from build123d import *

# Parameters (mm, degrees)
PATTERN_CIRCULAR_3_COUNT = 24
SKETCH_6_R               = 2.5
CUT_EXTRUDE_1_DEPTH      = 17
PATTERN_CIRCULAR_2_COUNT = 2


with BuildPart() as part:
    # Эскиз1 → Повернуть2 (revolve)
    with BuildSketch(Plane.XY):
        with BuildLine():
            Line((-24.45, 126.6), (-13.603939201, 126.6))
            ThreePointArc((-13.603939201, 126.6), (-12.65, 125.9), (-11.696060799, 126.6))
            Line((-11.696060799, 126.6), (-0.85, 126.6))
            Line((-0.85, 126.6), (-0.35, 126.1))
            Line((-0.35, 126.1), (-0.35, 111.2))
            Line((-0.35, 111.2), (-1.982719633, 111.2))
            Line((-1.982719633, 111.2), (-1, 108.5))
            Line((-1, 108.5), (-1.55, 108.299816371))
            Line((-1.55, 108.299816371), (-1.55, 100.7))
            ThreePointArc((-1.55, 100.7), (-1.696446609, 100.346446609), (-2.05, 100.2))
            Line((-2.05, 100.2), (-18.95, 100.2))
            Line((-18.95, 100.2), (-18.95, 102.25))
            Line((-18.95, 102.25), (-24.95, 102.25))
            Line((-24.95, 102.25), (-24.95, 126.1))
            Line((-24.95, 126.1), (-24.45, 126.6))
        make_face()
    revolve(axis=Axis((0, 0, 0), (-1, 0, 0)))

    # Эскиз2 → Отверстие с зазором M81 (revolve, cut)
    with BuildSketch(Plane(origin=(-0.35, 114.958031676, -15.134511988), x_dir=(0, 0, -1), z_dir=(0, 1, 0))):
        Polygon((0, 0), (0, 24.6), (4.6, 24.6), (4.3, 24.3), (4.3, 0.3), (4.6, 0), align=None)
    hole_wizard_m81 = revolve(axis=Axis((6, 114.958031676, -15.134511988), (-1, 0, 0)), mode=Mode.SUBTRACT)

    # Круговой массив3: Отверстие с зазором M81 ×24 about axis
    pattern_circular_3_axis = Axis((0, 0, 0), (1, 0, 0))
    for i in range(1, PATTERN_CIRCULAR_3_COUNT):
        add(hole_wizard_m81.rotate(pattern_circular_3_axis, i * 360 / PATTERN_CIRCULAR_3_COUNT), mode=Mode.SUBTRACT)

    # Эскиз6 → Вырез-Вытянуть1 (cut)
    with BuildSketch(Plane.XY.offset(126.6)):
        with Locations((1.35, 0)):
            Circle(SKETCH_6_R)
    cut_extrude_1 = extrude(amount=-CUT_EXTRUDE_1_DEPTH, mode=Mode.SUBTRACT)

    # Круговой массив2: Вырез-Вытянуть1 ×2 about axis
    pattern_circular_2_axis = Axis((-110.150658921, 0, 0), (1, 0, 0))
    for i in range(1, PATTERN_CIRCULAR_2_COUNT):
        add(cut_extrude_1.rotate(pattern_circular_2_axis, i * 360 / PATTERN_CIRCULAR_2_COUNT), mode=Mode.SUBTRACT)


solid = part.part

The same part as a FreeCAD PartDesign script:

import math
import FreeCAD as App
import Part
import Sketcher
Q = App.Units.Quantity

doc = App.newDocument("Part")
body = doc.addObject("PartDesign::Body", "Body")

# Sketch on XY plane
sketch1 = body.newObject("Sketcher::SketchObject", "Sketch")
sketch1.AttachmentSupport = (doc.getObject("XY_Plane"), [""])
sketch1.MapMode = "FlatFace"
sketch1.addGeometry(Part.LineSegment(App.Vector(-13.6, 126.6, 0), App.Vector(-24.45, 126.6, 0)), False)
sketch1.addGeometry(Part.LineSegment(App.Vector(-24.45, 126.6, 0), App.Vector(-24.95, 126.1, 0)), False)
sketch1.addGeometry(Part.LineSegment(App.Vector(-24.95, 126.1, 0), App.Vector(-24.95, 102.25, 0)), False)
sketch1.addGeometry(Part.LineSegment(App.Vector(-24.95, 102.25, 0), App.Vector(-18.95, 102.25, 0)), False)
sketch1.addGeometry(Part.LineSegment(App.Vector(-18.95, 102.25, 0), App.Vector(-18.95, 100.2, 0)), False)
sketch1.addGeometry(Part.LineSegment(App.Vector(-18.95, 100.2, 0), App.Vector(-2.05, 100.2, 0)), False)
sketch1.addGeometry(Part.ArcOfCircle(Part.Circle(App.Vector(-2.05, 100.7, 0), App.Vector(0, 0, 1), 0.5), math.radians(-90), math.radians(0)), False)
sketch1.addGeometry(Part.LineSegment(App.Vector(-1.55, 100.7, 0), App.Vector(-1.55, 108.3, 0)), False)
sketch1.addGeometry(Part.LineSegment(App.Vector(-1.55, 108.3, 0), App.Vector(-1, 108.5, 0)), False)
sketch1.addGeometry(Part.LineSegment(App.Vector(-1, 108.5, 0), App.Vector(-1.98, 111.2, 0)), False)
sketch1.addGeometry(Part.LineSegment(App.Vector(-1.98, 111.2, 0), App.Vector(-0.35, 111.2, 0)), False)
sketch1.addGeometry(Part.LineSegment(App.Vector(-0.35, 111.2, 0), App.Vector(-0.35, 126.1, 0)), False)
sketch1.addGeometry(Part.LineSegment(App.Vector(-0.35, 126.1, 0), App.Vector(-0.85, 126.6, 0)), False)
sketch1.addGeometry(Part.LineSegment(App.Vector(-0.85, 126.6, 0), App.Vector(-11.7, 126.6, 0)), False)
sketch1.addGeometry(Part.ArcOfCircle(Part.Circle(App.Vector(-12.65, 126.9, 0), App.Vector(0, 0, 1), 1), math.radians(-163), math.radians(-17)), False)
sketch1.addConstraint(Sketcher.Constraint("Coincident", 0, 2, 1, 1))
sketch1.addConstraint(Sketcher.Constraint("Coincident", 1, 2, 2, 1))
sketch1.addConstraint(Sketcher.Constraint("Coincident", 2, 2, 3, 1))
sketch1.addConstraint(Sketcher.Constraint("Coincident", 3, 2, 4, 1))
sketch1.addConstraint(Sketcher.Constraint("Coincident", 4, 2, 5, 1))
sketch1.addConstraint(Sketcher.Constraint("Tangent", 5, 2, 6, 1))
sketch1.addConstraint(Sketcher.Constraint("Tangent", 6, 2, 7, 1))
sketch1.addConstraint(Sketcher.Constraint("Coincident", 7, 2, 8, 1))
sketch1.addConstraint(Sketcher.Constraint("Coincident", 8, 2, 9, 1))
sketch1.addConstraint(Sketcher.Constraint("Coincident", 9, 2, 10, 1))
sketch1.addConstraint(Sketcher.Constraint("Coincident", 10, 2, 11, 1))
sketch1.addConstraint(Sketcher.Constraint("Coincident", 11, 2, 12, 1))
sketch1.addConstraint(Sketcher.Constraint("Coincident", 12, 2, 13, 1))
sketch1.addConstraint(Sketcher.Constraint("Coincident", 13, 2, 14, 2))
sketch1.addConstraint(Sketcher.Constraint("Coincident", 14, 1, 0, 1))
sketch1.addConstraint(Sketcher.Constraint("Horizontal", 0))
sketch1.addConstraint(Sketcher.Constraint("Vertical", 2))
sketch1.addConstraint(Sketcher.Constraint("Horizontal", 3))
sketch1.addConstraint(Sketcher.Constraint("Vertical", 4))
sketch1.addConstraint(Sketcher.Constraint("Horizontal", 5))
sketch1.addConstraint(Sketcher.Constraint("Vertical", 7))
sketch1.addConstraint(Sketcher.Constraint("Horizontal", 10))
sketch1.addConstraint(Sketcher.Constraint("Vertical", 11))
sketch1.addConstraint(Sketcher.Constraint("Horizontal", 13))
sketch1.addConstraint(Sketcher.Constraint("Perpendicular", 8, 9))
sketch1.addConstraint(Sketcher.Constraint("Perpendicular", 1, 12))
sketch1.addConstraint(Sketcher.Constraint("Horizontal", 1, 2, 11, 2))
sketch1.addConstraint(Sketcher.Constraint("Horizontal", 0, 2, 12, 2))
sketch1.addConstraint(Sketcher.Constraint("Equal", 0, 13))
sketch1.addConstraint(Sketcher.Constraint("Equal", 1, 12))
sketch1.addConstraint(Sketcher.Constraint("Radius", 14, Q("1 mm")))
sketch1.addConstraint(Sketcher.Constraint("Radius", 6, Q("0.5 mm")))
sketch1.addConstraint(Sketcher.Constraint("DistanceX", 3, 1, 3, 2, Q("6 mm")))
sketch1.addConstraint(Sketcher.Constraint("Angle", 8, Q("20 deg")))
sketch1.addConstraint(Sketcher.Constraint("DistanceX", 5, 1, 5, 2, Q("16.9 mm")))
sketch1.addConstraint(Sketcher.Constraint("DistanceY", 11, 1, 11, 2, Q("14.9 mm")))
sketch1.addConstraint(Sketcher.Constraint("DistanceX", 8, 2, -1, 1, Q("1 mm")))
sketch1.addConstraint(Sketcher.Constraint("DistanceY", 5, 2, 9, 2, Q("11 mm")))
sketch1.addConstraint(Sketcher.Constraint("DistanceY", 2, 2, 2, 1, Q("23.85 mm")))
sketch1.addConstraint(Sketcher.Constraint("DistanceY", -1, 1, 6, 3, Q("100.7 mm")))
sketch1.addConstraint(Sketcher.Constraint("DistanceY", -1, 1, 14, 3, Q("126.9 mm")))
sketch1.addConstraint(Sketcher.Constraint("DistanceY", -1, 1, 0, 2, Q("126.6 mm")))
sketch1.addConstraint(Sketcher.Constraint("DistanceY", -1, 1, 8, 2, Q("108.5 mm")))
sketch1.addConstraint(Sketcher.Constraint("DistanceX", 14, 3, 6, 3, Q("10.6 mm")))
sketch1.addConstraint(Sketcher.Constraint("DistanceX", 6, 3, -1, 1, Q("2.05 mm")))
revolution = body.newObject("PartDesign::Revolution", "Revolution")
revolution.Profile = sketch1
revolution.ReferenceAxis = (sketch1, ["H_Axis"])
revolution.Angle = 360

# Sketch on XZ plane
sketch2 = body.newObject("Sketcher::SketchObject", "Sketch001")
sketch2.AttachmentSupport = (doc.getObject("XZ_Plane"), [""])
sketch2.MapMode = "FlatFace"
sketch2.AttachmentOffset = App.Placement(App.Vector(0, 0, -114.958032), App.Rotation())
sketch2.addGeometry(Part.LineSegment(App.Vector(-24.95, -15.13, 0), App.Vector(-0.35, -15.13, 0)), False)
sketch2.addGeometry(Part.LineSegment(App.Vector(-0.35, -15.13, 0), App.Vector(-0.35, -19.73, 0)), False)
sketch2.addGeometry(Part.LineSegment(App.Vector(-0.35, -19.73, 0), App.Vector(-0.65, -19.43, 0)), False)
sketch2.addGeometry(Part.LineSegment(App.Vector(-0.65, -19.43, 0), App.Vector(-24.65, -19.43, 0)), False)
sketch2.addGeometry(Part.LineSegment(App.Vector(-24.65, -19.43, 0), App.Vector(-24.95, -19.73, 0)), False)
sketch2.addGeometry(Part.LineSegment(App.Vector(-24.95, -19.73, 0), App.Vector(-24.95, -15.13, 0)), False)
sketch2.addGeometry(Part.LineSegment(App.Vector(-0.35, -15.13, 0), App.Vector(-24.95, -15.13, 0)), True)  # axis
sketch2.addConstraint(Sketcher.Constraint("Coincident", 0, 2, 1, 1))
sketch2.addConstraint(Sketcher.Constraint("Coincident", 1, 2, 2, 1))
sketch2.addConstraint(Sketcher.Constraint("Coincident", 2, 2, 3, 1))
sketch2.addConstraint(Sketcher.Constraint("Coincident", 3, 2, 4, 1))
sketch2.addConstraint(Sketcher.Constraint("Coincident", 4, 2, 5, 1))
sketch2.addConstraint(Sketcher.Constraint("Coincident", 5, 2, 0, 1))
sketch2.addConstraint(Sketcher.Constraint("Horizontal", 0))
sketch2.addConstraint(Sketcher.Constraint("Vertical", 1))
sketch2.addConstraint(Sketcher.Constraint("Horizontal", 3))
sketch2.addConstraint(Sketcher.Constraint("Vertical", 5))
sketch2.addConstraint(Sketcher.Constraint("Horizontal", 6))
sketch2.addConstraint(Sketcher.Constraint("Coincident", 6, 1, 0, 2))
sketch2.addConstraint(Sketcher.Constraint("Perpendicular", 2, 4))
sketch2.addConstraint(Sketcher.Constraint("Horizontal", 1, 2, 4, 2))
sketch2.addConstraint(Sketcher.Constraint("Vertical", 4, 2, 6, 2))
sketch2.addConstraint(Sketcher.Constraint("Equal", 2, 4))
sketch2.addConstraint(Sketcher.Constraint("DistanceX", 3, 2, 3, 1, Q("24 mm")))
sketch2.addConstraint(Sketcher.Constraint("DistanceX", 0, 1, 0, 2, Q("24.6 mm")))
sketch2.addConstraint(Sketcher.Constraint("DistanceY", 1, 2, 1, 1, Q("4.6 mm")))
sketch2.addConstraint(Sketcher.Constraint("DistanceX", 0, 2, -1, 1, Q("0.35 mm")))
sketch2.addConstraint(Sketcher.Constraint("DistanceY", 0, 2, -1, 1, Q("15.134512 mm")))
groove = body.newObject("PartDesign::Groove", "Groove")
groove.Profile = sketch2
groove.ReferenceAxis = (sketch2, ["Axis0"])
groove.Angle = 360
doc.recompute()

polarpattern = body.newObject("PartDesign::PolarPattern", "PolarPattern")
polarpattern.Originals = [groove]
polarpattern.Axis = (doc.getObject("X_Axis"), [""])
polarpattern.Angle = 360
polarpattern.Occurrences = 24
body.Tip = polarpattern

# Sketch on XY plane
sketch3 = body.newObject("Sketcher::SketchObject", "Sketch002")
sketch3.AttachmentSupport = (doc.getObject("XY_Plane"), [""])
sketch3.MapMode = "FlatFace"
sketch3.AttachmentOffset = App.Placement(App.Vector(0, 0, 126.6), App.Rotation())
sketch3.addGeometry(Part.Circle(App.Vector(1.4, 0, 0), App.Vector(0, 0, 1), 2.5), False)
sketch3.addConstraint(Sketcher.Constraint("PointOnObject", 0, 3, -1))
sketch3.addConstraint(Sketcher.Constraint("Diameter", 0, Q("5 mm")))
sketch3.addConstraint(Sketcher.Constraint("DistanceX", -1, 1, 0, 3, Q("1.35 mm")))
pocket1 = body.newObject("PartDesign::Pocket", "Pocket")
pocket1.Profile = sketch3
pocket1.Length = 17
doc.recompute()

polarpattern2 = body.newObject("PartDesign::PolarPattern", "PolarPattern001")
polarpattern2.Originals = [pocket1]
polarpattern2.Axis = (doc.getObject("X_Axis"), [""])
polarpattern2.Angle = 360
polarpattern2.Occurrences = 2
body.Tip = polarpattern2

doc.recompute()
